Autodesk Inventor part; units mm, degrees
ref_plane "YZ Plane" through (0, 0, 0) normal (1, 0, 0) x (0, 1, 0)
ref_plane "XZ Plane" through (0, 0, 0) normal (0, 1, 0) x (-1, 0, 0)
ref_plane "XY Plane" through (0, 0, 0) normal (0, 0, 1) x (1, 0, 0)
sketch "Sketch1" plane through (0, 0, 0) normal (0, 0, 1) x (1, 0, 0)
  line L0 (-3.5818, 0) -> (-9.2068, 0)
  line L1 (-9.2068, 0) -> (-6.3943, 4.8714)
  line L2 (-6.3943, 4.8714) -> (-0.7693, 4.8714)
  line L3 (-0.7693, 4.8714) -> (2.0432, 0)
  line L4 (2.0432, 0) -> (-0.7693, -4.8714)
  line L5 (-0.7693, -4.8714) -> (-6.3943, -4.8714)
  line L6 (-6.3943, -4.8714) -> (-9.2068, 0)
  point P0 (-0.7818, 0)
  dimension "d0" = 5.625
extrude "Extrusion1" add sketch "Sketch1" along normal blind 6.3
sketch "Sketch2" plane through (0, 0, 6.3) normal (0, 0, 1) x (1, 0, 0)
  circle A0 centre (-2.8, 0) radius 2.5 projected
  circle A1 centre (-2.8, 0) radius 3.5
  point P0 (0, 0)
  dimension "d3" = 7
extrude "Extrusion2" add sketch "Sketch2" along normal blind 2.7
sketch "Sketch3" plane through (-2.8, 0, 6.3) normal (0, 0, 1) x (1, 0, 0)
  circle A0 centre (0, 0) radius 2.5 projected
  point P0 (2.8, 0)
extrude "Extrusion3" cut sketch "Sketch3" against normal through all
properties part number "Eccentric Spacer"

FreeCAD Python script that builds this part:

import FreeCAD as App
import Part
import Sketcher

V = App.Vector
Q = App.Units.Quantity


def add_polygon(sketch, points):
    """Adds a closed chain of lines whose ends are joined by coincident constraints."""
    first, n = sketch.GeometryCount, len(points)
    for a, b in zip(points, points[1:] + points[:1]):
        sketch.addGeometry(Part.LineSegment(App.Vector(*a, 0), App.Vector(*b, 0)), False)
    for i in range(n):
        sketch.addConstraint(Sketcher.Constraint("Coincident", first + i, 2, first + (i + 1) % n, 1))

doc = App.newDocument("Part")
body = doc.addObject("PartDesign::Body", "Body")

# Sketch on XY plane
sketch1 = doc.addObject("Sketcher::SketchObject", "Sketch")
body.addObject(sketch1)
sketch1.AttachmentSupport = (doc.XY_Plane, [""])
sketch1.MapMode = "FlatFace"
add_polygon(sketch1, [(-6, 5), (-9, 0), (-6, -5), (-1, -5), (2, 0), (-1, 5)])  # lines 0-5
sketch1.addConstraint(Sketcher.Constraint("Horizontal", 2))
sketch1.addConstraint(Sketcher.Constraint("Horizontal", 5))
sketch1.addConstraint(Sketcher.Constraint("Symmetric", 2, 2, 4, 2, -1))
sketch1.addConstraint(Sketcher.Constraint("PointOnObject", 0, 2, -1))
sketch1.addConstraint(Sketcher.Constraint("PointOnObject", 3, 2, -1))
sketch1.addConstraint(Sketcher.Constraint("Parallel", 0, 3))
sketch1.addConstraint(Sketcher.Constraint("Parallel", 1, 4))
sketch1.addConstraint(Sketcher.Constraint("DistanceX", 2, 1, 2, 2, Q("5.625 mm")))
sketch1.addConstraint(Sketcher.Constraint("Angle", 0, Q("-120 deg")))
sketch1.addConstraint(Sketcher.Constraint("Distance", 0, Q("5.625 mm")))
sketch1.addConstraint(Sketcher.Constraint("DistanceX", 0, 2, -1, 1, Q("9.2068 mm")))
pad1 = doc.addObject("PartDesign::Pad", "Pad")
body.addObject(pad1)
pad1.Profile = sketch1
pad1.Length = 6.3

# Sketch on XY plane
sketch2 = doc.addObject("Sketcher::SketchObject", "Sketch001")
body.addObject(sketch2)
sketch2.AttachmentSupport = (doc.XY_Plane, [""])
sketch2.MapMode = "FlatFace"
sketch2.AttachmentOffset = App.Placement(V(0, 0, 6.3), App.Rotation())
sketch2.addGeometry(Part.Circle(V(-2.8, 0, 0), V(0, 0, 1), 3.5), False)
sketch2.addGeometry(Part.Circle(V(-2.8, 0, 0), V(0, 0, 1), 2.5), False)
sketch2.addConstraint(Sketcher.Constraint("Coincident", 1, 3, 0, 3))
sketch2.addConstraint(Sketcher.Constraint("PointOnObject", 0, 3, -1))
sketch2.addConstraint(Sketcher.Constraint("Diameter", 0, Q("7 mm")))
sketch2.addConstraint(Sketcher.Constraint("Diameter", 1, Q("5 mm")))
sketch2.addConstraint(Sketcher.Constraint("DistanceX", 0, 3, -1, 1, Q("2.8 mm")))
pad2 = doc.addObject("PartDesign::Pad", "Pad001")
body.addObject(pad2)
pad2.Profile = sketch2
pad2.Length = 2.7

# Sketch on XY plane
sketch3 = doc.addObject("Sketcher::SketchObject", "Sketch002")
body.addObject(sketch3)
sketch3.AttachmentSupport = (doc.XY_Plane, [""])
sketch3.MapMode = "FlatFace"
sketch3.AttachmentOffset = App.Placement(V(0, 0, 6.3), App.Rotation())
sketch3.addGeometry(Part.Circle(V(-2.8, 0, 0), V(0, 0, 1), 2.5), False)
sketch3.addConstraint(Sketcher.Constraint("PointOnObject", 0, 3, -1))
sketch3.addConstraint(Sketcher.Constraint("Diameter", 0, Q("5 mm")))
sketch3.addConstraint(Sketcher.Constraint("DistanceX", 0, 3, -1, 1, Q("2.8 mm")))
pocket1 = doc.addObject("PartDesign::Pocket", "Pocket")
body.addObject(pocket1)
pocket1.Profile = sketch3
pocket1.Type = "ThroughAll"

doc.recompute()
